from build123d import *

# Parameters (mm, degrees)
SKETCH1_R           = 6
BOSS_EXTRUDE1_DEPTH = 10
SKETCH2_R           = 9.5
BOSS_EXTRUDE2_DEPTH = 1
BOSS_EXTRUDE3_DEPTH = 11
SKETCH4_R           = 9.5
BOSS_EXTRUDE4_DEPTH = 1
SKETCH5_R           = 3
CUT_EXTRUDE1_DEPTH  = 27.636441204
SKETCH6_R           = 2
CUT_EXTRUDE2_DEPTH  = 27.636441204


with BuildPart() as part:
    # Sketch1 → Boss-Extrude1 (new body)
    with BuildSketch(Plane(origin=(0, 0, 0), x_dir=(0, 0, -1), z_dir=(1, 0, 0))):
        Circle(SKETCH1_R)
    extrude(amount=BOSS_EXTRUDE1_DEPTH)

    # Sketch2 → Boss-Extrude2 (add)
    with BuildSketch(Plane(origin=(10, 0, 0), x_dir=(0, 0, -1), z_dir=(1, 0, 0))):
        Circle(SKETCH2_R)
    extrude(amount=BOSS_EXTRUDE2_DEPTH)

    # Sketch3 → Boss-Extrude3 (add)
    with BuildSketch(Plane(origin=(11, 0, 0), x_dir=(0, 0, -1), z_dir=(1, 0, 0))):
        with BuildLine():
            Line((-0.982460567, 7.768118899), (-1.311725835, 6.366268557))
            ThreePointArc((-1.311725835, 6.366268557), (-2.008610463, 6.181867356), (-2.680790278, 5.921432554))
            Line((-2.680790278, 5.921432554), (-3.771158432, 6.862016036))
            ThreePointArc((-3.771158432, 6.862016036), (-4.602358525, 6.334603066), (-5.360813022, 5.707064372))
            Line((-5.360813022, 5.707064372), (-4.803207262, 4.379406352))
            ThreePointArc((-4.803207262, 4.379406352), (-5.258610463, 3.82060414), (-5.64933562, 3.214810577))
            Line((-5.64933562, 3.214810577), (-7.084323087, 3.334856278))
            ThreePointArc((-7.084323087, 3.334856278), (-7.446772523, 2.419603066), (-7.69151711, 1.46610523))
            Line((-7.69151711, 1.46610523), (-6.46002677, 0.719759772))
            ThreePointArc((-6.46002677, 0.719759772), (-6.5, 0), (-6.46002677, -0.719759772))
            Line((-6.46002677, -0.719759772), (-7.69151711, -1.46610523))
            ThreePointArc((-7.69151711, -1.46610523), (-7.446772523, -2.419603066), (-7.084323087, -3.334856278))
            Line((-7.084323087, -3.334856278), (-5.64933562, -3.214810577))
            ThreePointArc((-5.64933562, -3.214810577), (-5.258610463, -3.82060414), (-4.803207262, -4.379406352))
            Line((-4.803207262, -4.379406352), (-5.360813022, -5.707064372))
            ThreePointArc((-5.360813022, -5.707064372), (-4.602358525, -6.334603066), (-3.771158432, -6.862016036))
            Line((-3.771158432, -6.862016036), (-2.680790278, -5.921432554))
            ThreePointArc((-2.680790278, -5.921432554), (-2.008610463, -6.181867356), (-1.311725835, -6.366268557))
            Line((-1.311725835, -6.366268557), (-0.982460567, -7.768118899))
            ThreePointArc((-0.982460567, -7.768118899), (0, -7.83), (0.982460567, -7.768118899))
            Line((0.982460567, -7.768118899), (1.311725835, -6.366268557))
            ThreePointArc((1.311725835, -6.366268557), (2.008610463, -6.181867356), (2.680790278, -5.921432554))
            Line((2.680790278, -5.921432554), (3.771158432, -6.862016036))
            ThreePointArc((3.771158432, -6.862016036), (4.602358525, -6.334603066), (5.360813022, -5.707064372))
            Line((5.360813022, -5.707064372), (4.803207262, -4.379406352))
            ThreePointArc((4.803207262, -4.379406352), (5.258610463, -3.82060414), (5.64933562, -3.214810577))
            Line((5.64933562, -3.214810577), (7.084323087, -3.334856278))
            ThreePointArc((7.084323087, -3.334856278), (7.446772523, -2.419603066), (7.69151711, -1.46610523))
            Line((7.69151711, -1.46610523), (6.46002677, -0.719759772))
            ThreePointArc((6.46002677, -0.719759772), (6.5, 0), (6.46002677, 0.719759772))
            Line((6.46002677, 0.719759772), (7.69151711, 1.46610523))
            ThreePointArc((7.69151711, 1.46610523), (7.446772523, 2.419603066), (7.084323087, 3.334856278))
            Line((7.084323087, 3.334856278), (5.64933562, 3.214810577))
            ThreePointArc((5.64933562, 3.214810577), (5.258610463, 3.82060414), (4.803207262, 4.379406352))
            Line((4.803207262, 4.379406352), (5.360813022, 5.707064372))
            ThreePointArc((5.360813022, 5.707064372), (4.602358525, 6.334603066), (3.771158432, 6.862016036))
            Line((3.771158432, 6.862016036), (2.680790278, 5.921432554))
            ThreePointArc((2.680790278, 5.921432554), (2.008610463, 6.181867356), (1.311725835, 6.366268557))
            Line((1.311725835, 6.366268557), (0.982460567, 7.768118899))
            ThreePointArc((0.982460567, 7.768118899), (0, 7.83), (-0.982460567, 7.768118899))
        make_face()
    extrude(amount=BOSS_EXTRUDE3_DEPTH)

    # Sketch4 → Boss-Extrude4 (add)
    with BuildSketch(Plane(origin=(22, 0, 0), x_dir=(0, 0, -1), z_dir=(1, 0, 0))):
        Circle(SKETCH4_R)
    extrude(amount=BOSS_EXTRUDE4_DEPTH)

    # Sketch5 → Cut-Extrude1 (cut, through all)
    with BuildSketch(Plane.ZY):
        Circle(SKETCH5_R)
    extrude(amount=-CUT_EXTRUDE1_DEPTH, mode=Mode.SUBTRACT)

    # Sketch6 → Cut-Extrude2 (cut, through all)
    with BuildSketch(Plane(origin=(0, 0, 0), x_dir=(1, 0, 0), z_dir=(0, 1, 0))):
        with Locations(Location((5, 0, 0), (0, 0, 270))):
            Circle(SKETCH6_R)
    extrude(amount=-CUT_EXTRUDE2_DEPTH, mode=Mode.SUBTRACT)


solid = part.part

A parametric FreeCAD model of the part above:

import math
import FreeCAD as App
import Part
import Sketcher
from FreeCAD import Vector
Q = App.Units.Quantity

doc = App.newDocument("Part")
body = doc.addObject("PartDesign::Body", "Body")

# Sketch on YZ plane
sketch1 = body.newObject("Sketcher::SketchObject", "Sketch")
sketch1.AttachmentSupport = (doc.getObject("YZ_Plane"), [""])
sketch1.MapMode = "FlatFace"
sketch1.addGeometry(Part.Circle(Vector(0, 0, 0), Vector(0, 0, 1), 6), False)
sketch1.addConstraint(Sketcher.Constraint("Coincident", 0, 3, -1, 1))
sketch1.addConstraint(Sketcher.Constraint("Diameter", 0, Q("12 mm")))
pad1 = body.newObject("PartDesign::Pad", "Pad")
pad1.Profile = sketch1
pad1.Length = 10

# Sketch on YZ plane
sketch2 = body.newObject("Sketcher::SketchObject", "Sketch001")
sketch2.AttachmentSupport = (doc.getObject("YZ_Plane"), [""])
sketch2.MapMode = "FlatFace"
sketch2.AttachmentOffset = App.Placement(Vector(0, 0, 10), App.Rotation())
sketch2.addGeometry(Part.Circle(Vector(0, 0, 0), Vector(0, 0, 1), 10), False)
sketch2.addConstraint(Sketcher.Constraint("Coincident", 0, 3, -1, 1))
sketch2.addConstraint(Sketcher.Constraint("Diameter", 0, Q("19 mm")))
pad2 = body.newObject("PartDesign::Pad", "Pad001")
pad2.Profile = sketch2
pad2.Length = 1

# Sketch on YZ plane
sketch3 = body.newObject("Sketcher::SketchObject", "Sketch002")
sketch3.AttachmentSupport = (doc.getObject("YZ_Plane"), [""])
sketch3.MapMode = "FlatFace"
sketch3.AttachmentOffset = App.Placement(Vector(0, 0, 11), App.Rotation())
sketch3.addGeometry(Part.LineSegment(Vector(7.8, 1, 0), Vector(6.4, 1.3, 0)), False)
sketch3.addGeometry(Part.ArcOfCircle(Part.Circle(Vector(0, 0, 0), Vector(0, 0, 1), 6.5), math.radians(11.64), math.radians(24.36)), False)
sketch3.addGeometry(Part.LineSegment(Vector(5.9, 2.7, 0), Vector(6.9, 3.8, 0)), False)
sketch3.addGeometry(Part.ArcOfCircle(Part.Circle(Vector(0, 0, 0), Vector(0, 0, 1), 7.8), math.radians(28.79), math.radians(43.21)), False)
sketch3.addGeometry(Part.LineSegment(Vector(5.7, 5.4, 0), Vector(4.4, 4.8, 0)), False)
sketch3.addGeometry(Part.ArcOfCircle(Part.Circle(Vector(0, 0, 0), Vector(0, 0, 1), 6.5), math.radians(47.64), math.radians(60.36)), False)
sketch3.addGeometry(Part.LineSegment(Vector(3.2, 5.6, 0), Vector(3.3, 7.1, 0)), False)
sketch3.addGeometry(Part.ArcOfCircle(Part.Circle(Vector(0, 0, 0), Vector(0, 0, 1), 7.8), math.radians(64.79), math.radians(79.21)), False)
sketch3.addGeometry(Part.LineSegment(Vector(1.5, 7.7, 0), Vector(0.7, 6.5, 0)), False)
sketch3.addGeometry(Part.ArcOfCircle(Part.Circle(Vector(0, 0, 0), Vector(0, 0, 1), 6.5), math.radians(83.64), math.radians(96.36)), False)
sketch3.addGeometry(Part.LineSegment(Vector(-0.7, 6.5, 0), Vector(-1.5, 7.7, 0)), False)
sketch3.addGeometry(Part.ArcOfCircle(Part.Circle(Vector(0, 0, 0), Vector(0, 0, 1), 7.8), math.radians(100.79), math.radians(115.21)), False)
sketch3.addGeometry(Part.LineSegment(Vector(-3.3, 7.1, 0), Vector(-3.2, 5.6, 0)), False)
sketch3.addGeometry(Part.ArcOfCircle(Part.Circle(Vector(0, 0, 0), Vector(0, 0, 1), 6.5), math.radians(119.64), math.radians(132.36)), False)
sketch3.addGeometry(Part.LineSegment(Vector(-4.4, 4.8, 0), Vector(-5.7, 5.4, 0)), False)
sketch3.addGeometry(Part.ArcOfCircle(Part.Circle(Vector(0, 0, 0), Vector(0, 0, 1), 7.8), math.radians(136.79), math.radians(151.21)), False)
sketch3.addGeometry(Part.LineSegment(Vector(-6.9, 3.8, 0), Vector(-5.9, 2.7, 0)), False)
sketch3.addGeometry(Part.ArcOfCircle(Part.Circle(Vector(0, 0, 0), Vector(0, 0, 1), 6.5), math.radians(155.64), math.radians(168.36)), False)
sketch3.addGeometry(Part.LineSegment(Vector(-6.4, 1.3, 0), Vector(-7.8, 1, 0)), False)
sketch3.addGeometry(Part.ArcOfCircle(Part.Circle(Vector(0, 0, 0), Vector(0, 0, 1), 7.8), math.radians(172.79), math.radians(187.21)), False)
sketch3.addGeometry(Part.LineSegment(Vector(-7.8, -1, 0), Vector(-6.4, -1.3, 0)), False)
sketch3.addGeometry(Part.ArcOfCircle(Part.Circle(Vector(0, 0, 0), Vector(0, 0, 1), 6.5), math.radians(-168.36), math.radians(-155.64)), False)
sketch3.addGeometry(Part.LineSegment(Vector(-5.9, -2.7, 0), Vector(-6.9, -3.8, 0)), False)
sketch3.addGeometry(Part.ArcOfCircle(Part.Circle(Vector(0, 0, 0), Vector(0, 0, 1), 7.8), math.radians(-151.21), math.radians(-136.79)), False)
sketch3.addGeometry(Part.LineSegment(Vector(-5.7, -5.4, 0), Vector(-4.4, -4.8, 0)), False)
sketch3.addGeometry(Part.ArcOfCircle(Part.Circle(Vector(0, 0, 0), Vector(0, 0, 1), 6.5), math.radians(-132.36), math.radians(-119.64)), False)
sketch3.addGeometry(Part.LineSegment(Vector(-3.2, -5.6, 0), Vector(-3.3, -7.1, 0)), False)
sketch3.addGeometry(Part.ArcOfCircle(Part.Circle(Vector(0, 0, 0), Vector(0, 0, 1), 7.8), math.radians(-115.21), math.radians(-100.79)), False)
sketch3.addGeometry(Part.LineSegment(Vector(-1.5, -7.7, 0), Vector(-0.7, -6.5, 0)), False)
sketch3.addGeometry(Part.ArcOfCircle(Part.Circle(Vector(0, 0, 0), Vector(0, 0, 1), 6.5), math.radians(-96.36), math.radians(-83.64)), False)
sketch3.addGeometry(Part.LineSegment(Vector(0.7, -6.5, 0), Vector(1.5, -7.7, 0)), False)
sketch3.addGeometry(Part.ArcOfCircle(Part.Circle(Vector(0, 0, 0), Vector(0, 0, 1), 7.8), math.radians(-79.21), math.radians(-64.79)), False)
sketch3.addGeometry(Part.LineSegment(Vector(3.3, -7.1, 0), Vector(3.2, -5.6, 0)), False)
sketch3.addGeometry(Part.ArcOfCircle(Part.Circle(Vector(0, 0, 0), Vector(0, 0, 1), 6.5), math.radians(-60.36), math.radians(-47.64)), False)
sketch3.addGeometry(Part.LineSegment(Vector(4.4, -4.8, 0), Vector(5.7, -5.4, 0)), False)
sketch3.addGeometry(Part.ArcOfCircle(Part.Circle(Vector(0, 0, 0), Vector(0, 0, 1), 7.8), math.radians(-43.21), math.radians(-28.79)), False)
sketch3.addGeometry(Part.LineSegment(Vector(6.9, -3.8, 0), Vector(5.9, -2.7, 0)), False)
sketch3.addGeometry(Part.ArcOfCircle(Part.Circle(Vector(0, 0, 0), Vector(0, 0, 1), 6.5), math.radians(-24.36), math.radians(-11.64)), False)
sketch3.addGeometry(Part.LineSegment(Vector(6.4, -1.3, 0), Vector(7.8, -1, 0)), False)
sketch3.addGeometry(Part.ArcOfCircle(Part.Circle(Vector(0, 0, 0), Vector(0, 0, 1), 7.8), math.radians(-7.21), math.radians(7.21)), False)
sketch3.addConstraint(Sketcher.Constraint("Coincident", 0, 2, 1, 1))
sketch3.addConstraint(Sketcher.Constraint("Coincident", 1, 2, 2, 1))
sketch3.addConstraint(Sketcher.Constraint("Coincident", 2, 2, 3, 1))
sketch3.addConstraint(Sketcher.Constraint("Coincident", 3, 2, 4, 1))
sketch3.addConstraint(Sketcher.Constraint("Coincident", 4, 2, 5, 1))
sketch3.addConstraint(Sketcher.Constraint("Coincident", 5, 2, 6, 1))
sketch3.addConstraint(Sketcher.Constraint("Coincident", 6, 2, 7, 1))
sketch3.addConstraint(Sketcher.Constraint("Coincident", 7, 2, 8, 1))
sketch3.addConstraint(Sketcher.Constraint("Coincident", 8, 2, 9, 1))
sketch3.addConstraint(Sketcher.Constraint("Coincident", 9, 2, 10, 1))
sketch3.addConstraint(Sketcher.Constraint("Coincident", 10, 2, 11, 1))
sketch3.addConstraint(Sketcher.Constraint("Coincident", 11, 2, 12, 1))
sketch3.addConstraint(Sketcher.Constraint("Coincident", 12, 2, 13, 1))
sketch3.addConstraint(Sketcher.Constraint("Coincident", 13, 2, 14, 1))
sketch3.addConstraint(Sketcher.Constraint("Coincident", 14, 2, 15, 1))
sketch3.addConstraint(Sketcher.Constraint("Coincident", 15, 2, 16, 1))
sketch3.addConstraint(Sketcher.Constraint("Coincident", 16, 2, 17, 1))
sketch3.addConstraint(Sketcher.Constraint("Coincident", 17, 2, 18, 1))
sketch3.addConstraint(Sketcher.Constraint("Coincident", 18, 2, 19, 1))
sketch3.addConstraint(Sketcher.Constraint("Coincident", 19, 2, 20, 1))
sketch3.addConstraint(Sketcher.Constraint("Coincident", 20, 2, 21, 1))
sketch3.addConstraint(Sketcher.Constraint("Coincident", 21, 2, 22, 1))
sketch3.addConstraint(Sketcher.Constraint("Coincident", 22, 2, 23, 1))
sketch3.addConstraint(Sketcher.Constraint("Coincident", 23, 2, 24, 1))
sketch3.addConstraint(Sketcher.Constraint("Coincident", 24, 2, 25, 1))
sketch3.addConstraint(Sketcher.Constraint("Coincident", 25, 2, 26, 1))
sketch3.addConstraint(Sketcher.Constraint("Coincident", 26, 2, 27, 1))
sketch3.addConstraint(Sketcher.Constraint("Coincident", 27, 2, 28, 1))
sketch3.addConstraint(Sketcher.Constraint("Coincident", 28, 2, 29, 1))
sketch3.addConstraint(Sketcher.Constraint("Coincident", 29, 2, 30, 1))
sketch3.addConstraint(Sketcher.Constraint("Coincident", 30, 2, 31, 1))
sketch3.addConstraint(Sketcher.Constraint("Coincident", 31, 2, 32, 1))
sketch3.addConstraint(Sketcher.Constraint("Coincident", 32, 2, 33, 1))
sketch3.addConstraint(Sketcher.Constraint("Coincident", 33, 2, 34, 1))
sketch3.addConstraint(Sketcher.Constraint("Coincident", 34, 2, 35, 1))
sketch3.addConstraint(Sketcher.Constraint("Coincident", 35, 2, 36, 1))
sketch3.addConstraint(Sketcher.Constraint("Coincident", 36, 2, 37, 1))
sketch3.addConstraint(Sketcher.Constraint("Coincident", 37, 2, 38, 1))
sketch3.addConstraint(Sketcher.Constraint("Coincident", 38, 2, 39, 1))
sketch3.addConstraint(Sketcher.Constraint("Coincident", 39, 2, 0, 1))
sketch3.addConstraint(Sketcher.Constraint("Coincident", 1, 3, -1, 1))
sketch3.addConstraint(Sketcher.Constraint("Coincident", 3, 3, -1, 1))
sketch3.addConstraint(Sketcher.Constraint("Coincident", 5, 3, -1, 1))
sketch3.addConstraint(Sketcher.Constraint("Coincident", 7, 3, -1, 1))
sketch3.addConstraint(Sketcher.Constraint("Coincident", 9, 3, -1, 1))
sketch3.addConstraint(Sketcher.Constraint("Coincident", 11, 3, -1, 1))
sketch3.addConstraint(Sketcher.Constraint("Coincident", 13, 3, -1, 1))
sketch3.addConstraint(Sketcher.Constraint("Coincident", 15, 3, -1, 1))
sketch3.addConstraint(Sketcher.Constraint("Coincident", 17, 3, -1, 1))
sketch3.addConstraint(Sketcher.Constraint("Coincident", 19, 3, -1, 1))
sketch3.addConstraint(Sketcher.Constraint("Coincident", 21, 3, -1, 1))
sketch3.addConstraint(Sketcher.Constraint("Coincident", 23, 3, -1, 1))
sketch3.addConstraint(Sketcher.Constraint("Coincident", 25, 3, -1, 1))
sketch3.addConstraint(Sketcher.Constraint("Coincident", 27, 3, -1, 1))
sketch3.addConstraint(Sketcher.Constraint("Coincident", 29, 3, -1, 1))
sketch3.addConstraint(Sketcher.Constraint("Coincident", 31, 3, -1, 1))
sketch3.addConstraint(Sketcher.Constraint("Coincident", 33, 3, -1, 1))
sketch3.addConstraint(Sketcher.Constraint("Coincident", 35, 3, -1, 1))
sketch3.addConstraint(Sketcher.Constraint("Coincident", 37, 3, -1, 1))
sketch3.addConstraint(Sketcher.Constraint("Coincident", 39, 3, -1, 1))
sketch3.addConstraint(Sketcher.Constraint("Equal", 1, 5))
sketch3.addConstraint(Sketcher.Constraint("Equal", 3, 7))
sketch3.addConstraint(Sketcher.Constraint("Equal", 5, 9))
sketch3.addConstraint(Sketcher.Constraint("Equal", 7, 11))
sketch3.addConstraint(Sketcher.Constraint("Equal", 9, 13))
sketch3.addConstraint(Sketcher.Constraint("Equal", 11, 15))
sketch3.addConstraint(Sketcher.Constraint("Equal", 13, 17))
sketch3.addConstraint(Sketcher.Constraint("Equal", 15, 19))
sketch3.addConstraint(Sketcher.Constraint("Equal", 17, 21))
sketch3.addConstraint(Sketcher.Constraint("Equal", 19, 23))
sketch3.addConstraint(Sketcher.Constraint("Equal", 21, 25))
sketch3.addConstraint(Sketcher.Constraint("Equal", 23, 27))
sketch3.addConstraint(Sketcher.Constraint("Equal", 25, 29))
sketch3.addConstraint(Sketcher.Constraint("Equal", 27, 31))
sketch3.addConstraint(Sketcher.Constraint("Equal", 29, 33))
sketch3.addConstraint(Sketcher.Constraint("Equal", 31, 35))
sketch3.addConstraint(Sketcher.Constraint("Equal", 33, 37))
sketch3.addConstraint(Sketcher.Constraint("Equal", 35, 39))
sketch3.addConstraint(Sketcher.Constraint("Parallel", 0, 20))
sketch3.addConstraint(Sketcher.Constraint("Parallel", 2, 22))
sketch3.addConstraint(Sketcher.Constraint("Parallel", 4, 24))
sketch3.addConstraint(Sketcher.Constraint("Parallel", 6, 26))
sketch3.addConstraint(Sketcher.Constraint("Parallel", 8, 28))
sketch3.addConstraint(Sketcher.Constraint("Parallel", 10, 30))
sketch3.addConstraint(Sketcher.Constraint("Parallel", 12, 32))
sketch3.addConstraint(Sketcher.Constraint("Parallel", 14, 34))
sketch3.addConstraint(Sketcher.Constraint("Parallel", 16, 36))
sketch3.addConstraint(Sketcher.Constraint("Parallel", 18, 38))
sketch3.addConstraint(Sketcher.Constraint("Horizontal", 8, 2, 9, 2))
sketch3.addConstraint(Sketcher.Constraint("Horizontal", 7, 2, 10, 2))
sketch3.addConstraint(Sketcher.Constraint("Horizontal", 6, 2, 11, 2))
sketch3.addConstraint(Sketcher.Constraint("Horizontal", 5, 2, 12, 2))
sketch3.addConstraint(Sketcher.Constraint("Horizontal", 4, 2, 13, 2))
sketch3.addConstraint(Sketcher.Constraint("Horizontal", 3, 2, 14, 2))
sketch3.addConstraint(Sketcher.Constraint("Horizontal", 2, 2, 15, 2))
sketch3.addConstraint(Sketcher.Constraint("Horizontal", 1, 2, 16, 2))
sketch3.addConstraint(Sketcher.Constraint("Horizontal", 0, 2, 17, 2))
sketch3.addConstraint(Sketcher.Constraint("Horizontal", 28, 2, 29, 2))
sketch3.addConstraint(Sketcher.Constraint("Horizontal", 26, 2, 31, 2))
sketch3.addConstraint(Sketcher.Constraint("Horizontal", 24, 2, 33, 2))
sketch3.addConstraint(Sketcher.Constraint("Horizontal", 22, 2, 35, 2))
sketch3.addConstraint(Sketcher.Constraint("Horizontal", 20, 2, 37, 2))
sketch3.addConstraint(Sketcher.Constraint("Horizontal", 19, 2, 38, 2))
sketch3.addConstraint(Sketcher.Constraint("Vertical", 18, 2, 19, 2))
sketch3.addConstraint(Sketcher.Constraint("Vertical", 16, 2, 21, 2))
sketch3.addConstraint(Sketcher.Constraint("Vertical", 14, 2, 23, 2))
sketch3.addConstraint(Sketcher.Constraint("Vertical", 12, 2, 25, 2))
sketch3.addConstraint(Sketcher.Constraint("Vertical", 10, 2, 27, 2))
sketch3.addConstraint(Sketcher.Constraint("Equal", 0, 2))
sketch3.addConstraint(Sketcher.Constraint("Equal", 2, 4))
sketch3.addConstraint(Sketcher.Constraint("Equal", 4, 6))
sketch3.addConstraint(Sketcher.Constraint("Equal", 6, 8))
sketch3.addConstraint(Sketcher.Constraint("Radius", 1, Q("6.5 mm")))
sketch3.addConstraint(Sketcher.Constraint("Radius", 3, Q("7.83 mm")))
sketch3.addConstraint(Sketcher.Constraint("Distance", 0, Q("1.44 mm")))
sketch3.addConstraint(Sketcher.Constraint("DistanceX", 7, 2, 4, 2, Q("2.913301 mm")))
sketch3.addConstraint(Sketcher.Constraint("DistanceX", -1, 1, 0, 2, Q("6.366269 mm")))
sketch3.addConstraint(Sketcher.Constraint("DistanceY", -1, 1, 1, 2, Q("2.68079 mm")))
sketch3.addConstraint(Sketcher.Constraint("DistanceX", -1, 1, 5, 2, Q("3.214811 mm")))
sketch3.addConstraint(Sketcher.Constraint("DistanceX", -1, 1, 8, 2, Q("0.71976 mm")))
pad3 = body.newObject("PartDesign::Pad", "Pad002")
pad3.Profile = sketch3
pad3.Length = 11

# Sketch on YZ plane
sketch4 = body.newObject("Sketcher::SketchObject", "Sketch003")
sketch4.AttachmentSupport = (doc.getObject("YZ_Plane"), [""])
sketch4.MapMode = "FlatFace"
sketch4.AttachmentOffset = App.Placement(Vector(0, 0, 22), App.Rotation())
sketch4.addGeometry(Part.Circle(Vector(0, 0, 0), Vector(0, 0, 1), 10), False)
sketch4.addConstraint(Sketcher.Constraint("Coincident", 0, 3, -1, 1))
sketch4.addConstraint(Sketcher.Constraint("Diameter", 0, Q("19 mm")))
pad4 = body.newObject("PartDesign::Pad", "Pad003")
pad4.Profile = sketch4
pad4.Length = 1

# Sketch on YZ plane
sketch5 = body.newObject("Sketcher::SketchObject", "Sketch004")
sketch5.AttachmentSupport = (doc.getObject("YZ_Plane"), [""])
sketch5.MapMode = "FlatFace"
sketch5.addGeometry(Part.Circle(Vector(0, 0, 0), Vector(0, 0, 1), 3), False)
sketch5.addConstraint(Sketcher.Constraint("Coincident", 0, 3, -1, 1))
sketch5.addConstraint(Sketcher.Constraint("Diameter", 0, Q("6 mm")))
pocket1 = body.newObject("PartDesign::Pocket", "Pocket")
pocket1.Profile = sketch5
pocket1.Type = "ThroughAll"
pocket1.Reversed = True

# Sketch on XZ plane
sketch6 = body.newObject("Sketcher::SketchObject", "Sketch005")
sketch6.AttachmentSupport = (doc.getObject("XZ_Plane"), [""])
sketch6.MapMode = "FlatFace"
sketch6.addGeometry(Part.Circle(Vector(5, 0, 0), Vector(0, 0, 1), 2), False)
sketch6.addConstraint(Sketcher.Constraint("PointOnObject", 0, 3, -1))
sketch6.addConstraint(Sketcher.Constraint("Diameter", 0, Q("4 mm")))
sketch6.addConstraint(Sketcher.Constraint("DistanceX", -1, 1, 0, 3, Q("5 mm")))
pocket2 = body.newObject("PartDesign::Pocket", "Pocket001")
pocket2.Profile = sketch6
pocket2.Type = "ThroughAll"
pocket2.Reversed = True

doc.recompute()
